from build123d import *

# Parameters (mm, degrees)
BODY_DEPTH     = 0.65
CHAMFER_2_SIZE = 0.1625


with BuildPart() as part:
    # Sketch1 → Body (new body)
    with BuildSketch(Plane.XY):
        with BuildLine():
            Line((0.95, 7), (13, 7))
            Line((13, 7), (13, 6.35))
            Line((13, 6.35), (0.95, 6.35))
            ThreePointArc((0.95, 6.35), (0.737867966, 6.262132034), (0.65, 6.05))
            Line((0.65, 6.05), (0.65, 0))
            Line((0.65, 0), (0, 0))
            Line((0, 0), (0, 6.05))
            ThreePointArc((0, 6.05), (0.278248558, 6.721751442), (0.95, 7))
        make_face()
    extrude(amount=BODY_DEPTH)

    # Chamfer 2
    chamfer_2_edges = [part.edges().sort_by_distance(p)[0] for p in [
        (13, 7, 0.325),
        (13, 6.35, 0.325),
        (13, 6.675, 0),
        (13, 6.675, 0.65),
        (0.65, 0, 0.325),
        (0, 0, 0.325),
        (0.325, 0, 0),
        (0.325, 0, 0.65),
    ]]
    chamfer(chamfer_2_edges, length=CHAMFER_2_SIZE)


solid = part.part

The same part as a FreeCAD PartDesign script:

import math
import FreeCAD as App
import Part
import Sketcher
Q = App.Units.Quantity


def edges_at(feature, points):
    """Names of the edges that pass closest to the given points."""
    edges = feature.Shape.Edges
    near = lambda p: min(range(len(edges)), key=lambda i: edges[i].distToShape(Part.Vertex(*p))[0])
    return sorted({f"Edge{near(p) + 1}" for p in points})

doc = App.newDocument("Part")
params = doc.addObject("Spreadsheet::Sheet", "Params")
for row, (alias, value) in enumerate([
    ("sketch1_radius", "0.3 mm"),
    ("sketch1_radius2", "0.95 mm"),
    ("pad1_length", "0.65 mm"),
    ("chamfer_size", "0.1625 mm"),
], start=1):
    params.set(f"A{row}", alias)
    params.set(f"B{row}", "=" + value)
    params.setAlias(f"B{row}", alias)

body = doc.addObject("PartDesign::Body", "Body")

# Sketch on XY plane
sketch1 = body.newObject("Sketcher::SketchObject", "Sketch")
sketch1.AttachmentSupport = (doc.getObject("XY_Plane"), [""])
sketch1.MapMode = "FlatFace"
sketch1.addGeometry([
    Part.LineSegment(App.Vector(13, 7, 0), App.Vector(0.95, 7, 0)),  # 0
    Part.ArcOfCircle(Part.Circle(App.Vector(0.95, 6.05, 0), App.Vector(0, 0, 1), 0.95), math.radians(90), math.radians(180)),  # 1
    Part.LineSegment(App.Vector(0, 6.05, 0), App.Vector(0, 0, 0)),  # 2
    Part.LineSegment(App.Vector(0, 0, 0), App.Vector(0.65, 0, 0)),  # 3
    Part.LineSegment(App.Vector(0.65, 0, 0), App.Vector(0.65, 6.05, 0)),  # 4
    Part.ArcOfCircle(Part.Circle(App.Vector(0.95, 6.05, 0), App.Vector(0, 0, 1), 0.3), math.radians(90), math.radians(180)),  # 5
    Part.LineSegment(App.Vector(0.95, 6.35, 0), App.Vector(13, 6.35, 0)),  # 6
    Part.LineSegment(App.Vector(13, 6.35, 0), App.Vector(13, 7, 0)),  # 7
], False)
sketch1.addConstraint([
    Sketcher.Constraint("Tangent", 0, 2, 1, 1),
    Sketcher.Constraint("Tangent", 1, 2, 2, 1),
    Sketcher.Constraint("Coincident", 2, 2, 3, 1),
    Sketcher.Constraint("Coincident", 3, 2, 4, 1),
    Sketcher.Constraint("Tangent", 4, 2, 5, 2),
    Sketcher.Constraint("Tangent", 5, 1, 6, 1),
    Sketcher.Constraint("Coincident", 6, 2, 7, 1),
    Sketcher.Constraint("Coincident", 7, 2, 0, 1),
    Sketcher.Constraint("Horizontal", 0),
    Sketcher.Constraint("Vertical", 2),
    Sketcher.Constraint("Horizontal", 3),
    Sketcher.Constraint("Vertical", 4),
    Sketcher.Constraint("Horizontal", 6),
    Sketcher.Constraint("Vertical", 7),
    Sketcher.Constraint("Coincident", 2, 2, -1, 1),
    Sketcher.Constraint("Coincident", 5, 3, 1, 3),
    Sketcher.Constraint("Radius", 5, Q("0.3 mm")),
    Sketcher.Constraint("Radius", 1, Q("0.95 mm")),
    Sketcher.Constraint("DistanceY", -1, 1, 0, 2, Q("7 mm")),
    Sketcher.Constraint("DistanceX", -1, 1, 6, 2, Q("13 mm")),
])
sketch1.setExpression("Constraints[16]", "Params.sketch1_radius")
sketch1.setExpression("Constraints[17]", "Params.sketch1_radius2")
pad1 = body.newObject("PartDesign::Pad", "Pad")
pad1.Profile = sketch1
pad1.setExpression("Length", "Params.pad1_length")
doc.recompute()

chamfer = body.newObject("PartDesign::Chamfer", "Chamfer")
chamfer.Base = (pad1, edges_at(pad1, [
    (13, 7, 0.325),
    (13, 6.35, 0.325),
    (13, 6.675, 0),
    (13, 6.675, 0.65),
    (0.65, 0, 0.325),
    (0, 0, 0.325),
    (0.325, 0, 0),
    (0.325, 0, 0.65),
]))
chamfer.setExpression("Size", "Params.chamfer_size")

doc.recompute()
